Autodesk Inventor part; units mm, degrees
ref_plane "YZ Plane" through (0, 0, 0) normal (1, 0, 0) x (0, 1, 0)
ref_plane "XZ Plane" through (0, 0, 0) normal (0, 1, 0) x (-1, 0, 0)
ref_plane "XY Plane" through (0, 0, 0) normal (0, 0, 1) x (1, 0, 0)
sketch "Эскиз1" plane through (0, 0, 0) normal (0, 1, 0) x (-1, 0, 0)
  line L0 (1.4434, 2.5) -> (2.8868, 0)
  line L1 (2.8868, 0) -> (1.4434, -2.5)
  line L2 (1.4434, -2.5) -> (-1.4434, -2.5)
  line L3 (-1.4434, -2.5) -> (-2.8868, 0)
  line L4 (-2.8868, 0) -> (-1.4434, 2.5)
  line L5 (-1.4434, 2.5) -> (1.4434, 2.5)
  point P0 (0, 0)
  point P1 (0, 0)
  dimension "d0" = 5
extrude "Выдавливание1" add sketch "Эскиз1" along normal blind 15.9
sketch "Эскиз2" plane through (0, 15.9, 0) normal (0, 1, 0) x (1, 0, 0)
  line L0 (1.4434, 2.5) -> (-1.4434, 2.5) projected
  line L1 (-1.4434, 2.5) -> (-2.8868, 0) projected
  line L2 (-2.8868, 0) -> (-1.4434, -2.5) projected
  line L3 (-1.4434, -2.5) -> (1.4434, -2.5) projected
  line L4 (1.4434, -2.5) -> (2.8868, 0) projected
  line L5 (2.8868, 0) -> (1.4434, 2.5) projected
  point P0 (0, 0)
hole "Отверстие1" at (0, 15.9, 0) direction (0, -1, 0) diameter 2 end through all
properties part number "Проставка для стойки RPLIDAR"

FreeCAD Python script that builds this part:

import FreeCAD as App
import Part
import Sketcher
Q = App.Units.Quantity

doc = App.newDocument("Part")
body = doc.addObject("PartDesign::Body", "Body")

# Sketch on XZ plane
sketch1 = doc.addObject("Sketcher::SketchObject", "Sketch")
body.addObject(sketch1)
sketch1.AttachmentSupport = (doc.XZ_Plane, [""])
sketch1.MapMode = "FlatFace"
sketch1.addGeometry([
    Part.LineSegment(App.Vector(-2.9, 0, 0), App.Vector(-1.4, 2.5, 0)),  # 0
    Part.LineSegment(App.Vector(-1.4, 2.5, 0), App.Vector(1.4, 2.5, 0)),  # 1
    Part.LineSegment(App.Vector(1.4, 2.5, 0), App.Vector(2.9, 0, 0)),  # 2
    Part.LineSegment(App.Vector(2.9, 0, 0), App.Vector(1.4, -2.5, 0)),  # 3
    Part.LineSegment(App.Vector(1.4, -2.5, 0), App.Vector(-1.4, -2.5, 0)),  # 4
    Part.LineSegment(App.Vector(-1.4, -2.5, 0), App.Vector(-2.9, 0, 0)),  # 5
], False)
sketch1.addConstraint([
    Sketcher.Constraint("Coincident", 0, 2, 1, 1),
    Sketcher.Constraint("Coincident", 1, 2, 2, 1),
    Sketcher.Constraint("Coincident", 2, 2, 3, 1),
    Sketcher.Constraint("Coincident", 3, 2, 4, 1),
    Sketcher.Constraint("Coincident", 4, 2, 5, 1),
    Sketcher.Constraint("Coincident", 5, 2, 0, 1),
    Sketcher.Constraint("Horizontal", 1),
    Sketcher.Constraint("Horizontal", 4),
    Sketcher.Constraint("Symmetric", 0, 2, 3, 2, -1, 1),
    Sketcher.Constraint("Symmetric", 2, 2, 5, 2, -1, 1),
    Sketcher.Constraint("PointOnObject", 2, 2, -1),
    Sketcher.Constraint("Parallel", 2, 5),
    Sketcher.Constraint("Vertical", 1, 2, 3, 2),
    Sketcher.Constraint("DistanceY", 3, 2, 1, 2, 5.0),
    Sketcher.Constraint("Angle", 0, Q("59.9996 deg")),
    Sketcher.Constraint("DistanceX", 1, 1, 1, 2, 2.8868),
])
pad1 = doc.addObject("PartDesign::Pad", "Pad")
body.addObject(pad1)
pad1.Profile = sketch1
pad1.Length = 15.9
pad1.Reversed = True

# Sketch on XZ plane
sketch2 = doc.addObject("Sketcher::SketchObject", "Sketch001")
body.addObject(sketch2)
sketch2.AttachmentSupport = (doc.XZ_Plane, [""])
sketch2.MapMode = "FlatFace"
sketch2.AttachmentOffset = App.Placement(App.Vector(0, 0, -15.9), App.Rotation())
sketch2.addGeometry(Part.Circle(App.Vector(0, 0, 0), App.Vector(0, 0, 1), 1), False)
sketch2.addConstraint([
    Sketcher.Constraint("Coincident", 0, 3, -1, 1),
    Sketcher.Constraint("Diameter", 0, 2.0),
])
doc.recompute()
hole = doc.addObject("PartDesign::Hole", "Hole")
body.addObject(hole)
hole.Profile = sketch2
hole.ThreadType = "None"
hole.Diameter = 2
hole.DepthType = "ThroughAll"
hole.Reversed = True

doc.recompute()
